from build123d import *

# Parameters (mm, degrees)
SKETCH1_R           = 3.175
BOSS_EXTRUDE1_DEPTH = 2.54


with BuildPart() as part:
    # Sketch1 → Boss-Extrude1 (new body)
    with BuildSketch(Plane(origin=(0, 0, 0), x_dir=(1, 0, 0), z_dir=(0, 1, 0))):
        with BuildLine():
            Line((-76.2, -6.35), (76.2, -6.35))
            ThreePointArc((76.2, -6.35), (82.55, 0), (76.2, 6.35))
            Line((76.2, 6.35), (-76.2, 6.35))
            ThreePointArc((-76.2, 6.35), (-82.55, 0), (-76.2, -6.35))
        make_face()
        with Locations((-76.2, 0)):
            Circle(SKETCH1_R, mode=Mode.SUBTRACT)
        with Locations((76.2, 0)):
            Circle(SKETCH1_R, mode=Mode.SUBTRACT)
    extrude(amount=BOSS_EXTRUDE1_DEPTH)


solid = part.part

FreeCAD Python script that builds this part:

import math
import FreeCAD as App
import Part
import Sketcher

V = App.Vector
Q = App.Units.Quantity

doc = App.newDocument("Part")
body = doc.addObject("PartDesign::Body", "Body")

sketch1 = body.newObject("Sketcher::SketchObject", "Sketch")
sketch1.AttachmentSupport = (doc.getObject("XZ_Plane"), [""])
sketch1.MapMode = "FlatFace"
sketch1.addGeometry([
    Part.LineSegment(V(-76.2, 6.35, 0), V(76.2, 6.35, 0)),
    Part.ArcOfCircle(Part.Circle(V(76.2, 0, 0), V(0, 0, 1), 6.35), math.radians(-90), math.radians(90)),
    Part.LineSegment(V(76.2, -6.35, 0), V(-76.2, -6.35, 0)),
    Part.ArcOfCircle(Part.Circle(V(-76.2, 0, 0), V(0, 0, 1), 6.35), math.radians(90), math.radians(270)),
    Part.Circle(V(-76.2, 0, 0), V(0, 0, 1), 3.175),
    Part.Circle(V(76.2, 0, 0), V(0, 0, 1), 3.175),
], False)
sketch1.addConstraint([
    Sketcher.Constraint("Tangent", 0, 2, 1, 2),
    Sketcher.Constraint("Tangent", 1, 1, 2, 1),
    Sketcher.Constraint("Tangent", 2, 2, 3, 2),
    Sketcher.Constraint("Tangent", 3, 1, 0, 1),
    Sketcher.Constraint("Horizontal", 0),
    Sketcher.Constraint("Horizontal", 2),
    Sketcher.Constraint("Coincident", 4, 3, 3, 3),
    Sketcher.Constraint("Coincident", 5, 3, 1, 3),
    Sketcher.Constraint("Equal", 4, 5),
    Sketcher.Constraint("Symmetric", 1, 3, 3, 3, -1, 1),
    Sketcher.Constraint("Diameter", 4, Q("0.25 in")),
    Sketcher.Constraint("DistanceX", 0, 1, 0, 2, Q("6 in")),
    Sketcher.Constraint("Radius", 1, Q("0.25 in")),
])
pad1 = body.newObject("PartDesign::Pad", "Pad")
pad1.Profile = sketch1
pad1.Length = Q("0.1 in")
pad1.Reversed = True

doc.recompute()
